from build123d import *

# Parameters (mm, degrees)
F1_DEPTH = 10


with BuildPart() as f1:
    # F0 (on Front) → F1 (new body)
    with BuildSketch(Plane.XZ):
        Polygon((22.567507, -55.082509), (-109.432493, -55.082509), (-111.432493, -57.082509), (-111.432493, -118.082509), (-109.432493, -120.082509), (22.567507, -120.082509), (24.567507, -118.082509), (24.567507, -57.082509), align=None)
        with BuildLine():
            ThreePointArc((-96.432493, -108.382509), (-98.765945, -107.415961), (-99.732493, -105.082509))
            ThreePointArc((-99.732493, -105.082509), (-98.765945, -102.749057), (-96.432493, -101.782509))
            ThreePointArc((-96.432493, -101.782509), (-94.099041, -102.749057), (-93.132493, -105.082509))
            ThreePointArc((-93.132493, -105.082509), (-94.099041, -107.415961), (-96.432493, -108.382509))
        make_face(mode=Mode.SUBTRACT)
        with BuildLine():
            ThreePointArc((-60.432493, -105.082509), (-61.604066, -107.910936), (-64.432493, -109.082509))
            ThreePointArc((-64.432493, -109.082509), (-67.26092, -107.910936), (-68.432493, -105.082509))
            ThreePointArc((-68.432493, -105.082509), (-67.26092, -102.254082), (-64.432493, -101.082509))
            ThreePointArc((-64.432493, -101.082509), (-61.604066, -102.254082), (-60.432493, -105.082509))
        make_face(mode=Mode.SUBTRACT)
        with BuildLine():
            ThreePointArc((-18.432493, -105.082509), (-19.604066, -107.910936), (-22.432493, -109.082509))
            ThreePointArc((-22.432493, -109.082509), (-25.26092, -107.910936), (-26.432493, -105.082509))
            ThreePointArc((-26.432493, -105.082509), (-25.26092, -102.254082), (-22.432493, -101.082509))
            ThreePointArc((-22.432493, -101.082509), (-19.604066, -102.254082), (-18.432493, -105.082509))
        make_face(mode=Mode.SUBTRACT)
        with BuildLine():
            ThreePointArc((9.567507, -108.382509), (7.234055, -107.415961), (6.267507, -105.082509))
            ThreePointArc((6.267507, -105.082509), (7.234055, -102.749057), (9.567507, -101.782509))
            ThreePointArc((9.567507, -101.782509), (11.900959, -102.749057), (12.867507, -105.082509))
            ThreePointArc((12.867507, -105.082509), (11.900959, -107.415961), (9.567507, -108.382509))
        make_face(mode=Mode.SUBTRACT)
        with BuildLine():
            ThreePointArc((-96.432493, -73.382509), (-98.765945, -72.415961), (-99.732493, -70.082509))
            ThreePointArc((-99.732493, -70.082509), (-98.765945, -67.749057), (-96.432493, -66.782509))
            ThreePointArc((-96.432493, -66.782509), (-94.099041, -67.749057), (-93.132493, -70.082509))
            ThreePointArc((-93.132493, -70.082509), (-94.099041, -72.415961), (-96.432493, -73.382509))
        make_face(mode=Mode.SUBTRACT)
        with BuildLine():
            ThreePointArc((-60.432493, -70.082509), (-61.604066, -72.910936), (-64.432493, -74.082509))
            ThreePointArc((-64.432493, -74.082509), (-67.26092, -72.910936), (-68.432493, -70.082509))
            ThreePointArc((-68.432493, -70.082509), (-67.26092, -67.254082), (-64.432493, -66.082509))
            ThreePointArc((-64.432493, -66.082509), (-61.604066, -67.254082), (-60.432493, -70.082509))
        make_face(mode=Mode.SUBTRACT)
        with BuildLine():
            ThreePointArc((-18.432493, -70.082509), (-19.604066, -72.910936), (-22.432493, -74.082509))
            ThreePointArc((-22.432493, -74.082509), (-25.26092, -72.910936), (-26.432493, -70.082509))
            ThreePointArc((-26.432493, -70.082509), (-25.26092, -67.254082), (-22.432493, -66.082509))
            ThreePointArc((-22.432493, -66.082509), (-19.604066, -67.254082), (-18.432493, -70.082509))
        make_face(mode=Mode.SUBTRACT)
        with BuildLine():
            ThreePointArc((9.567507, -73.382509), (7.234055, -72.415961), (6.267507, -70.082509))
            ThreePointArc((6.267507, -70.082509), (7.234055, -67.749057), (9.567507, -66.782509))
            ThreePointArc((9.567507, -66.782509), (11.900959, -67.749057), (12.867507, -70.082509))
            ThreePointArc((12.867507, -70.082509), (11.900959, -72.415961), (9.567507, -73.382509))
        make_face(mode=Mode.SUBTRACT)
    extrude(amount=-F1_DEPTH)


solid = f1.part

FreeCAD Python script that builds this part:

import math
import FreeCAD as App
import Part
import Sketcher
from FreeCAD import Vector

doc = App.newDocument("Part")
body = doc.addObject("PartDesign::Body", "Body")

# Sketch on XZ plane
sketch1 = body.newObject("Sketcher::SketchObject", "Sketch")
sketch1.AttachmentSupport = (doc.getObject("XZ_Plane"), [""])
sketch1.MapMode = "FlatFace"
sketch1.addGeometry(Part.LineSegment(Vector(22.6, -55.1, 0), Vector(-109.4, -55.1, 0)), False)
sketch1.addGeometry(Part.LineSegment(Vector(-109.4, -55.1, 0), Vector(-111.4, -57.1, 0)), False)
sketch1.addGeometry(Part.LineSegment(Vector(-111.4, -57.1, 0), Vector(-111.4, -118.1, 0)), False)
sketch1.addGeometry(Part.LineSegment(Vector(-111.4, -118.1, 0), Vector(-109.4, -120.1, 0)), False)
sketch1.addGeometry(Part.LineSegment(Vector(-109.4, -120.1, 0), Vector(22.6, -120.1, 0)), False)
sketch1.addGeometry(Part.LineSegment(Vector(22.6, -120.1, 0), Vector(24.6, -118.1, 0)), False)
sketch1.addGeometry(Part.LineSegment(Vector(24.6, -118.1, 0), Vector(24.6, -57.1, 0)), False)
sketch1.addGeometry(Part.LineSegment(Vector(24.6, -57.1, 0), Vector(22.6, -55.1, 0)), False)
sketch1.addGeometry(Part.ArcOfCircle(Part.Circle(Vector(-96.4, -105.1, 0), Vector(0, 0, 1), 3.3), math.radians(-90), math.radians(0)), False)
sketch1.addGeometry(Part.ArcOfCircle(Part.Circle(Vector(-96.4, -105.1, 0), Vector(0, 0, 1), 3.3), math.radians(-180), math.radians(-90)), False)
sketch1.addGeometry(Part.ArcOfCircle(Part.Circle(Vector(-96.4, -105.1, 0), Vector(0, 0, 1), 3.3), math.radians(90), math.radians(180)), False)
sketch1.addGeometry(Part.ArcOfCircle(Part.Circle(Vector(-96.4, -105.1, 0), Vector(0, 0, 1), 3.3), math.radians(0), math.radians(90)), False)
sketch1.addGeometry(Part.ArcOfCircle(Part.Circle(Vector(-64.4, -105.1, 0), Vector(0, 0, 1), 4), math.radians(0), math.radians(90)), False)
sketch1.addGeometry(Part.ArcOfCircle(Part.Circle(Vector(-64.4, -105.1, 0), Vector(0, 0, 1), 4), math.radians(-90), math.radians(0)), False)
sketch1.addGeometry(Part.ArcOfCircle(Part.Circle(Vector(-64.4, -105.1, 0), Vector(0, 0, 1), 4), math.radians(-180), math.radians(-90)), False)
sketch1.addGeometry(Part.ArcOfCircle(Part.Circle(Vector(-64.4, -105.1, 0), Vector(0, 0, 1), 4), math.radians(90), math.radians(180)), False)
sketch1.addGeometry(Part.ArcOfCircle(Part.Circle(Vector(-22.4, -105.1, 0), Vector(0, 0, 1), 4), math.radians(0), math.radians(90)), False)
sketch1.addGeometry(Part.ArcOfCircle(Part.Circle(Vector(-22.4, -105.1, 0), Vector(0, 0, 1), 4), math.radians(-90), math.radians(0)), False)
sketch1.addGeometry(Part.ArcOfCircle(Part.Circle(Vector(-22.4, -105.1, 0), Vector(0, 0, 1), 4), math.radians(-180), math.radians(-90)), False)
sketch1.addGeometry(Part.ArcOfCircle(Part.Circle(Vector(-22.4, -105.1, 0), Vector(0, 0, 1), 4), math.radians(90), math.radians(180)), False)
sketch1.addGeometry(Part.ArcOfCircle(Part.Circle(Vector(9.6, -105.1, 0), Vector(0, 0, 1), 3.3), math.radians(-90), math.radians(0)), False)
sketch1.addGeometry(Part.ArcOfCircle(Part.Circle(Vector(9.6, -105.1, 0), Vector(0, 0, 1), 3.3), math.radians(-180), math.radians(-90)), False)
sketch1.addGeometry(Part.ArcOfCircle(Part.Circle(Vector(9.6, -105.1, 0), Vector(0, 0, 1), 3.3), math.radians(90), math.radians(180)), False)
sketch1.addGeometry(Part.ArcOfCircle(Part.Circle(Vector(9.6, -105.1, 0), Vector(0, 0, 1), 3.3), math.radians(0), math.radians(90)), False)
sketch1.addGeometry(Part.ArcOfCircle(Part.Circle(Vector(-96.4, -70.1, 0), Vector(0, 0, 1), 3.3), math.radians(-90), math.radians(0)), False)
sketch1.addGeometry(Part.ArcOfCircle(Part.Circle(Vector(-96.4, -70.1, 0), Vector(0, 0, 1), 3.3), math.radians(-180), math.radians(-90)), False)
sketch1.addGeometry(Part.ArcOfCircle(Part.Circle(Vector(-96.4, -70.1, 0), Vector(0, 0, 1), 3.3), math.radians(90), math.radians(180)), False)
sketch1.addGeometry(Part.ArcOfCircle(Part.Circle(Vector(-96.4, -70.1, 0), Vector(0, 0, 1), 3.3), math.radians(0), math.radians(90)), False)
sketch1.addGeometry(Part.ArcOfCircle(Part.Circle(Vector(-64.4, -70.1, 0), Vector(0, 0, 1), 4), math.radians(0), math.radians(90)), False)
sketch1.addGeometry(Part.ArcOfCircle(Part.Circle(Vector(-64.4, -70.1, 0), Vector(0, 0, 1), 4), math.radians(-90), math.radians(0)), False)
sketch1.addGeometry(Part.ArcOfCircle(Part.Circle(Vector(-64.4, -70.1, 0), Vector(0, 0, 1), 4), math.radians(-180), math.radians(-90)), False)
sketch1.addGeometry(Part.ArcOfCircle(Part.Circle(Vector(-64.4, -70.1, 0), Vector(0, 0, 1), 4), math.radians(90), math.radians(180)), False)
sketch1.addGeometry(Part.ArcOfCircle(Part.Circle(Vector(-22.4, -70.1, 0), Vector(0, 0, 1), 4), math.radians(0), math.radians(90)), False)
sketch1.addGeometry(Part.ArcOfCircle(Part.Circle(Vector(-22.4, -70.1, 0), Vector(0, 0, 1), 4), math.radians(-90), math.radians(0)), False)
sketch1.addGeometry(Part.ArcOfCircle(Part.Circle(Vector(-22.4, -70.1, 0), Vector(0, 0, 1), 4), math.radians(-180), math.radians(-90)), False)
sketch1.addGeometry(Part.ArcOfCircle(Part.Circle(Vector(-22.4, -70.1, 0), Vector(0, 0, 1), 4), math.radians(90), math.radians(180)), False)
sketch1.addGeometry(Part.ArcOfCircle(Part.Circle(Vector(9.6, -70.1, 0), Vector(0, 0, 1), 3.3), math.radians(-90), math.radians(0)), False)
sketch1.addGeometry(Part.ArcOfCircle(Part.Circle(Vector(9.6, -70.1, 0), Vector(0, 0, 1), 3.3), math.radians(-180), math.radians(-90)), False)
sketch1.addGeometry(Part.ArcOfCircle(Part.Circle(Vector(9.6, -70.1, 0), Vector(0, 0, 1), 3.3), math.radians(90), math.radians(180)), False)
sketch1.addGeometry(Part.ArcOfCircle(Part.Circle(Vector(9.6, -70.1, 0), Vector(0, 0, 1), 3.3), math.radians(0), math.radians(90)), False)
sketch1.addConstraint(Sketcher.Constraint("Coincident", 0, 2, 1, 1))
sketch1.addConstraint(Sketcher.Constraint("Coincident", 1, 2, 2, 1))
sketch1.addConstraint(Sketcher.Constraint("Coincident", 2, 2, 3, 1))
sketch1.addConstraint(Sketcher.Constraint("Coincident", 3, 2, 4, 1))
sketch1.addConstraint(Sketcher.Constraint("Coincident", 4, 2, 5, 1))
sketch1.addConstraint(Sketcher.Constraint("Coincident", 5, 2, 6, 1))
sketch1.addConstraint(Sketcher.Constraint("Coincident", 6, 2, 7, 1))
sketch1.addConstraint(Sketcher.Constraint("Coincident", 7, 2, 0, 1))
sketch1.addConstraint(Sketcher.Constraint("Tangent", 8, 1, 9, 2))
sketch1.addConstraint(Sketcher.Constraint("Tangent", 9, 1, 10, 2))
sketch1.addConstraint(Sketcher.Constraint("Tangent", 10, 1, 11, 2))
sketch1.addConstraint(Sketcher.Constraint("Tangent", 11, 1, 8, 2))
sketch1.addConstraint(Sketcher.Constraint("Tangent", 12, 1, 13, 2))
sketch1.addConstraint(Sketcher.Constraint("Tangent", 13, 1, 14, 2))
sketch1.addConstraint(Sketcher.Constraint("Tangent", 14, 1, 15, 2))
sketch1.addConstraint(Sketcher.Constraint("Tangent", 15, 1, 12, 2))
sketch1.addConstraint(Sketcher.Constraint("Tangent", 16, 1, 17, 2))
sketch1.addConstraint(Sketcher.Constraint("Tangent", 17, 1, 18, 2))
sketch1.addConstraint(Sketcher.Constraint("Tangent", 18, 1, 19, 2))
sketch1.addConstraint(Sketcher.Constraint("Tangent", 19, 1, 16, 2))
sketch1.addConstraint(Sketcher.Constraint("Tangent", 20, 1, 21, 2))
sketch1.addConstraint(Sketcher.Constraint("Tangent", 21, 1, 22, 2))
sketch1.addConstraint(Sketcher.Constraint("Tangent", 22, 1, 23, 2))
sketch1.addConstraint(Sketcher.Constraint("Tangent", 23, 1, 20, 2))
sketch1.addConstraint(Sketcher.Constraint("Tangent", 24, 1, 25, 2))
sketch1.addConstraint(Sketcher.Constraint("Tangent", 25, 1, 26, 2))
sketch1.addConstraint(Sketcher.Constraint("Tangent", 26, 1, 27, 2))
sketch1.addConstraint(Sketcher.Constraint("Tangent", 27, 1, 24, 2))
sketch1.addConstraint(Sketcher.Constraint("Tangent", 28, 1, 29, 2))
sketch1.addConstraint(Sketcher.Constraint("Tangent", 29, 1, 30, 2))
sketch1.addConstraint(Sketcher.Constraint("Tangent", 30, 1, 31, 2))
sketch1.addConstraint(Sketcher.Constraint("Tangent", 31, 1, 28, 2))
sketch1.addConstraint(Sketcher.Constraint("Tangent", 32, 1, 33, 2))
sketch1.addConstraint(Sketcher.Constraint("Tangent", 33, 1, 34, 2))
sketch1.addConstraint(Sketcher.Constraint("Tangent", 34, 1, 35, 2))
sketch1.addConstraint(Sketcher.Constraint("Tangent", 35, 1, 32, 2))
sketch1.addConstraint(Sketcher.Constraint("Tangent", 36, 1, 37, 2))
sketch1.addConstraint(Sketcher.Constraint("Tangent", 37, 1, 38, 2))
sketch1.addConstraint(Sketcher.Constraint("Tangent", 38, 1, 39, 2))
sketch1.addConstraint(Sketcher.Constraint("Tangent", 39, 1, 36, 2))
sketch1.addConstraint(Sketcher.Constraint("Horizontal", 0))
sketch1.addConstraint(Sketcher.Constraint("Vertical", 2))
sketch1.addConstraint(Sketcher.Constraint("Horizontal", 4))
sketch1.addConstraint(Sketcher.Constraint("Vertical", 6))
sketch1.addConstraint(Sketcher.Constraint("Equal", 8, 9))
sketch1.addConstraint(Sketcher.Constraint("Equal", 12, 13))
sketch1.addConstraint(Sketcher.Constraint("Equal", 15, 16))
sketch1.addConstraint(Sketcher.Constraint("Equal", 16, 17))
sketch1.addConstraint(Sketcher.Constraint("Equal", 11, 20))
sketch1.addConstraint(Sketcher.Constraint("Equal", 20, 21))
sketch1.addConstraint(Sketcher.Constraint("Equal", 23, 24))
sketch1.addConstraint(Sketcher.Constraint("Equal", 24, 25))
sketch1.addConstraint(Sketcher.Constraint("Equal", 19, 28))
sketch1.addConstraint(Sketcher.Constraint("Equal", 28, 29))
sketch1.addConstraint(Sketcher.Constraint("Equal", 31, 32))
sketch1.addConstraint(Sketcher.Constraint("Equal", 32, 33))
sketch1.addConstraint(Sketcher.Constraint("Equal", 27, 36))
sketch1.addConstraint(Sketcher.Constraint("Equal", 36, 37))
sketch1.addConstraint(Sketcher.Constraint("Perpendicular", 1, 3))
sketch1.addConstraint(Sketcher.Constraint("Perpendicular", 3, 5))
sketch1.addConstraint(Sketcher.Constraint("Perpendicular", 5, 7))
sketch1.addConstraint(Sketcher.Constraint("Horizontal", 11, 3, 12, 3))
sketch1.addConstraint(Sketcher.Constraint("Horizontal", 15, 3, 16, 3))
sketch1.addConstraint(Sketcher.Constraint("Horizontal", 19, 3, 20, 3))
sketch1.addConstraint(Sketcher.Constraint("Horizontal", 27, 3, 28, 3))
sketch1.addConstraint(Sketcher.Constraint("Horizontal", 31, 3, 32, 3))
sketch1.addConstraint(Sketcher.Constraint("Horizontal", 35, 3, 36, 3))
sketch1.addConstraint(Sketcher.Constraint("Horizontal", 2, 2, 5, 2))
sketch1.addConstraint(Sketcher.Constraint("Horizontal", 1, 2, 6, 2))
sketch1.addConstraint(Sketcher.Constraint("Horizontal", 23, 3, 9, 1))
sketch1.addConstraint(Sketcher.Constraint("Horizontal", 9, 1, 11, 1))
sketch1.addConstraint(Sketcher.Constraint("Horizontal", 11, 1, 12, 1))
sketch1.addConstraint(Sketcher.Constraint("Horizontal", 12, 1, 14, 1))
sketch1.addConstraint(Sketcher.Constraint("Horizontal", 14, 1, 16, 1))
sketch1.addConstraint(Sketcher.Constraint("Horizontal", 16, 1, 18, 1))
sketch1.addConstraint(Sketcher.Constraint("Horizontal", 18, 1, 21, 1))
sketch1.addConstraint(Sketcher.Constraint("Horizontal", 21, 1, 23, 1))
sketch1.addConstraint(Sketcher.Constraint("Horizontal", 39, 3, 25, 1))
sketch1.addConstraint(Sketcher.Constraint("Horizontal", 25, 1, 27, 1))
sketch1.addConstraint(Sketcher.Constraint("Horizontal", 27, 1, 28, 1))
sketch1.addConstraint(Sketcher.Constraint("Horizontal", 28, 1, 30, 1))
sketch1.addConstraint(Sketcher.Constraint("Horizontal", 30, 1, 32, 1))
sketch1.addConstraint(Sketcher.Constraint("Horizontal", 32, 1, 34, 1))
sketch1.addConstraint(Sketcher.Constraint("Horizontal", 34, 1, 37, 1))
sketch1.addConstraint(Sketcher.Constraint("Horizontal", 37, 1, 39, 1))
sketch1.addConstraint(Sketcher.Constraint("Vertical", 11, 3, 24, 3))
sketch1.addConstraint(Sketcher.Constraint("Vertical", 15, 3, 28, 3))
sketch1.addConstraint(Sketcher.Constraint("Vertical", 19, 3, 32, 3))
sketch1.addConstraint(Sketcher.Constraint("Vertical", 23, 3, 36, 3))
sketch1.addConstraint(Sketcher.Constraint("Vertical", 0, 2, 3, 2))
sketch1.addConstraint(Sketcher.Constraint("Vertical", 4, 2, 7, 2))
sketch1.addConstraint(Sketcher.Constraint("Vertical", 27, 3, 8, 1))
sketch1.addConstraint(Sketcher.Constraint("Vertical", 8, 1, 10, 1))
sketch1.addConstraint(Sketcher.Constraint("Vertical", 31, 3, 13, 1))
sketch1.addConstraint(Sketcher.Constraint("Vertical", 13, 1, 15, 1))
sketch1.addConstraint(Sketcher.Constraint("Vertical", 35, 3, 17, 1))
sketch1.addConstraint(Sketcher.Constraint("Vertical", 17, 1, 19, 1))
sketch1.addConstraint(Sketcher.Constraint("Vertical", 39, 3, 20, 1))
sketch1.addConstraint(Sketcher.Constraint("Vertical", 20, 1, 22, 1))
sketch1.addConstraint(Sketcher.Constraint("Vertical", 10, 1, 24, 1))
sketch1.addConstraint(Sketcher.Constraint("Vertical", 24, 1, 26, 1))
sketch1.addConstraint(Sketcher.Constraint("Vertical", 15, 1, 29, 1))
sketch1.addConstraint(Sketcher.Constraint("Vertical", 29, 1, 31, 1))
sketch1.addConstraint(Sketcher.Constraint("Vertical", 19, 1, 33, 1))
sketch1.addConstraint(Sketcher.Constraint("Vertical", 33, 1, 35, 1))
sketch1.addConstraint(Sketcher.Constraint("Vertical", 22, 1, 36, 1))
sketch1.addConstraint(Sketcher.Constraint("Vertical", 36, 1, 38, 1))
sketch1.addConstraint(Sketcher.Constraint("Radius", 12, 4.0))
sketch1.addConstraint(Sketcher.Constraint("Radius", 8, 3.300001))
sketch1.addConstraint(Sketcher.Constraint("DistanceX", 0, 2, 0, 1, 132.0))
sketch1.addConstraint(Sketcher.Constraint("DistanceY", 2, 2, 2, 1, 61.0))
sketch1.addConstraint(Sketcher.Constraint("DistanceX", 9, 3, -1, 1, 96.432492))
sketch1.addConstraint(Sketcher.Constraint("DistanceY", 10, 3, -1, 1, 105.08251))
sketch1.addConstraint(Sketcher.Constraint("DistanceX", -1, 1, 21, 3, 9.567508))
sketch1.addConstraint(Sketcher.Constraint("DistanceY", 26, 3, -1, 1, 70.08251))
sketch1.addConstraint(Sketcher.Constraint("DistanceY", 0, 2, -1, 1, 55.082509))
sketch1.addConstraint(Sketcher.Constraint("DistanceY", 1, 2, -1, 1, 57.082509))
sketch1.addConstraint(Sketcher.Constraint("DistanceX", 12, 3, -1, 1, 64.432493))
sketch1.addConstraint(Sketcher.Constraint("DistanceX", 16, 3, -1, 1, 22.432493))
sketch1.addConstraint(Sketcher.Constraint("DistanceX", 0, 2, -1, 1, 109.432493))
pad1 = body.newObject("PartDesign::Pad", "Pad")
pad1.Profile = sketch1
pad1.Length = 10
pad1.Reversed = True

doc.recompute()
